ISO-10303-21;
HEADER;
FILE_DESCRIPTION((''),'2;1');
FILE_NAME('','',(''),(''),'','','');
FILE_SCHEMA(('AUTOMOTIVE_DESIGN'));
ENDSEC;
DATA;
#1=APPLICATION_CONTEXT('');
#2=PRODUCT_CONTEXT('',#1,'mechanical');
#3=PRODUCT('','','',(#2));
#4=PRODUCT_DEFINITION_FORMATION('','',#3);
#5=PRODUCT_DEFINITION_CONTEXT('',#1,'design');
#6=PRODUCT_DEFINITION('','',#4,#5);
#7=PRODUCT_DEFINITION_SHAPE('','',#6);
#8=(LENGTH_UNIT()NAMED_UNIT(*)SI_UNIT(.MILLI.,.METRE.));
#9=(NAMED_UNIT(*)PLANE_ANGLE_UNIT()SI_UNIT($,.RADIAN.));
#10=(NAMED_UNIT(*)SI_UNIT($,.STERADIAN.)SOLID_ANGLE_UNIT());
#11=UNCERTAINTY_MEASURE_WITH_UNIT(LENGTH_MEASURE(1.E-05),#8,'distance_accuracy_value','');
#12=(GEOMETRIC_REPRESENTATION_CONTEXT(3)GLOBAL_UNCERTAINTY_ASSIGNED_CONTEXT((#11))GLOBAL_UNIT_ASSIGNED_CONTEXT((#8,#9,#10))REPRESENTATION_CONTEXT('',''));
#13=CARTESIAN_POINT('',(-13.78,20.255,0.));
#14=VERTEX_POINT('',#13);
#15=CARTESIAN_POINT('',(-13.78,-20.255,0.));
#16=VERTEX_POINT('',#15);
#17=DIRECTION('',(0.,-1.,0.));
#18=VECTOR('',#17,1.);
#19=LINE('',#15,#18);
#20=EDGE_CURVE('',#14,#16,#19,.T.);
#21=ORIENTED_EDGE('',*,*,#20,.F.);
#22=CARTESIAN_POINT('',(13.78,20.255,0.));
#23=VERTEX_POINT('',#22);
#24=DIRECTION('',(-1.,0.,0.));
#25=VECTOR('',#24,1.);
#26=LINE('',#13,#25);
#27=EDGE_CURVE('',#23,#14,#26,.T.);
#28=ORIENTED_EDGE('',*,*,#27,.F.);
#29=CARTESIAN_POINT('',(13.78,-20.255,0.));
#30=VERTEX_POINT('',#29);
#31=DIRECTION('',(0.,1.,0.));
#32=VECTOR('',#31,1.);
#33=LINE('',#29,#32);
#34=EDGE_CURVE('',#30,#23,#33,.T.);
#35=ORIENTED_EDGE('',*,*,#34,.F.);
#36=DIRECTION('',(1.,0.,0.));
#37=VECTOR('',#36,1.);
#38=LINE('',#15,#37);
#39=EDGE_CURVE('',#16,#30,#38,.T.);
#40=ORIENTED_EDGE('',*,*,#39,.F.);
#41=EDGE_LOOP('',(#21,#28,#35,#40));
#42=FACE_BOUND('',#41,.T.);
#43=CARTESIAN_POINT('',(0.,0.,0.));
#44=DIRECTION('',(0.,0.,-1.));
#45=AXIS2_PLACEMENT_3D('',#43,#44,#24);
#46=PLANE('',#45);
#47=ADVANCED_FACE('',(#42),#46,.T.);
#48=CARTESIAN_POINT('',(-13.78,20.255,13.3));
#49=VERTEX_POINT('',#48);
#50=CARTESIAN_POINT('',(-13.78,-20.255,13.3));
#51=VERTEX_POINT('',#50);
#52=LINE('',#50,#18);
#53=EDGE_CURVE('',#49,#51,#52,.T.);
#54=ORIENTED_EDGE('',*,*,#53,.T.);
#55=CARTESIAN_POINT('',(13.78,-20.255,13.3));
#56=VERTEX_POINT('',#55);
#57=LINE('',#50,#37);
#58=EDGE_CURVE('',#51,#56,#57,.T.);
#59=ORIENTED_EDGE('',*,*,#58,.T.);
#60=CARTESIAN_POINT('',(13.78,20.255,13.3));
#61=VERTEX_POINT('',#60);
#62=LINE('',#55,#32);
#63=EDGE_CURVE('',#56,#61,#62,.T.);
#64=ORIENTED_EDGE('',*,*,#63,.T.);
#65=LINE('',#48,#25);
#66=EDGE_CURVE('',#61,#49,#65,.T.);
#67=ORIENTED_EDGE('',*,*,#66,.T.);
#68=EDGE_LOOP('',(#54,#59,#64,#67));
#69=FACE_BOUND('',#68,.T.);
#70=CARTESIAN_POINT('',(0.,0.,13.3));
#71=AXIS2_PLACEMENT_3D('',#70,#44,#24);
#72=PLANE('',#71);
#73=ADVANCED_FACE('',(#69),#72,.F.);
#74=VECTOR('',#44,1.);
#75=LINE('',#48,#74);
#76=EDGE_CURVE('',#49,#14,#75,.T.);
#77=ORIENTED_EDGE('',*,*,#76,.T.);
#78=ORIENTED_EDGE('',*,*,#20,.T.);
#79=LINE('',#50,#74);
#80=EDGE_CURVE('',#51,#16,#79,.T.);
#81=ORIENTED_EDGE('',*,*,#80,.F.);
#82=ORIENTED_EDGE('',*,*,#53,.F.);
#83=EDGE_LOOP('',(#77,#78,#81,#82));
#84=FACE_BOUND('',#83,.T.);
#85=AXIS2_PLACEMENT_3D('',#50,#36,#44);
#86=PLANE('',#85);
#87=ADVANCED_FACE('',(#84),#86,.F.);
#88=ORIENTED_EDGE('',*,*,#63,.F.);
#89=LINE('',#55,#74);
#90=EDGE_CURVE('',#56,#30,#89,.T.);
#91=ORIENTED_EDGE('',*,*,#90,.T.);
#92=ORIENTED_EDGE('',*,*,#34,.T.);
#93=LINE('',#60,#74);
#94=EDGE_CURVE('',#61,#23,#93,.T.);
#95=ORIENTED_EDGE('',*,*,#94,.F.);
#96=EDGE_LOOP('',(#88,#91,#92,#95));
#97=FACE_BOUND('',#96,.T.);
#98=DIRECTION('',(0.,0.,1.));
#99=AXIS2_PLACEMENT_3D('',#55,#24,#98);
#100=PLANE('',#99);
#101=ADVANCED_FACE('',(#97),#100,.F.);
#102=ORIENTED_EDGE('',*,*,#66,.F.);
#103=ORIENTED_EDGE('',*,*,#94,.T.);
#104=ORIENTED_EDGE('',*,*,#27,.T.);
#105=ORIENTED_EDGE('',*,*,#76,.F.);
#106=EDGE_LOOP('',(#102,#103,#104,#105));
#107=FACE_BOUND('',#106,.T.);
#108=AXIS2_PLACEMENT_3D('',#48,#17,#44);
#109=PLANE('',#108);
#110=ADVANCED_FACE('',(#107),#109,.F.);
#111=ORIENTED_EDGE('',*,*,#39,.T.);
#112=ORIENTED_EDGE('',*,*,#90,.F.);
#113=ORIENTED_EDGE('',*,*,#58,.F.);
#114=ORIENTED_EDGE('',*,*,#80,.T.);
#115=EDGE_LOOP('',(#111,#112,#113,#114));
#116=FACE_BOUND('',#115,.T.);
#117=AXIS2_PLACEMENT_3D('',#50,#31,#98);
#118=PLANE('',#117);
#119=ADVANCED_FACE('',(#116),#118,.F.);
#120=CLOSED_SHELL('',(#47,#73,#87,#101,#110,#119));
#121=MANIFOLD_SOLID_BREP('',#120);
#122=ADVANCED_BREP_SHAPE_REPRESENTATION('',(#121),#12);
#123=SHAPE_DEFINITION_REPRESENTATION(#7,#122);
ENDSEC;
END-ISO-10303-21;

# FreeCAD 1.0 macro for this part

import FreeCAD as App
import Part
import Sketcher

V = App.Vector

doc = App.newDocument("Part")
body = doc.addObject("PartDesign::Body", "Body")

# Sketch on XY plane
sketch1 = doc.addObject("Sketcher::SketchObject", "Sketch")
body.addObject(sketch1)
sketch1.AttachmentSupport = (doc.XY_Plane, [""])
sketch1.MapMode = "FlatFace"
sketch1.addGeometry(Part.LineSegment(V(-14, 20, 0), V(-14, -20, 0)), False)
sketch1.addGeometry(Part.LineSegment(V(-14, -20, 0), V(14, -20, 0)), False)
sketch1.addGeometry(Part.LineSegment(V(14, -20, 0), V(14, 20, 0)), False)
sketch1.addGeometry(Part.LineSegment(V(14, 20, 0), V(-14, 20, 0)), False)
sketch1.addConstraint(Sketcher.Constraint("Coincident", 0, 2, 1, 1))
sketch1.addConstraint(Sketcher.Constraint("Coincident", 1, 2, 2, 1))
sketch1.addConstraint(Sketcher.Constraint("Coincident", 2, 2, 3, 1))
sketch1.addConstraint(Sketcher.Constraint("Coincident", 3, 2, 0, 1))
sketch1.addConstraint(Sketcher.Constraint("Vertical", 0))
sketch1.addConstraint(Sketcher.Constraint("Horizontal", 1))
sketch1.addConstraint(Sketcher.Constraint("Vertical", 2))
sketch1.addConstraint(Sketcher.Constraint("Horizontal", 3))
sketch1.addConstraint(Sketcher.Constraint("Symmetric", 0, 2, 2, 2, -1, 1))
sketch1.addConstraint(Sketcher.Constraint("DistanceX", 1, 1, 1, 2, 27.56))
sketch1.addConstraint(Sketcher.Constraint("DistanceY", 0, 2, 0, 1, 40.51))
pad1 = doc.addObject("PartDesign::Pad", "Pad")
body.addObject(pad1)
pad1.Profile = sketch1
pad1.Length = 13.3

doc.recompute()
